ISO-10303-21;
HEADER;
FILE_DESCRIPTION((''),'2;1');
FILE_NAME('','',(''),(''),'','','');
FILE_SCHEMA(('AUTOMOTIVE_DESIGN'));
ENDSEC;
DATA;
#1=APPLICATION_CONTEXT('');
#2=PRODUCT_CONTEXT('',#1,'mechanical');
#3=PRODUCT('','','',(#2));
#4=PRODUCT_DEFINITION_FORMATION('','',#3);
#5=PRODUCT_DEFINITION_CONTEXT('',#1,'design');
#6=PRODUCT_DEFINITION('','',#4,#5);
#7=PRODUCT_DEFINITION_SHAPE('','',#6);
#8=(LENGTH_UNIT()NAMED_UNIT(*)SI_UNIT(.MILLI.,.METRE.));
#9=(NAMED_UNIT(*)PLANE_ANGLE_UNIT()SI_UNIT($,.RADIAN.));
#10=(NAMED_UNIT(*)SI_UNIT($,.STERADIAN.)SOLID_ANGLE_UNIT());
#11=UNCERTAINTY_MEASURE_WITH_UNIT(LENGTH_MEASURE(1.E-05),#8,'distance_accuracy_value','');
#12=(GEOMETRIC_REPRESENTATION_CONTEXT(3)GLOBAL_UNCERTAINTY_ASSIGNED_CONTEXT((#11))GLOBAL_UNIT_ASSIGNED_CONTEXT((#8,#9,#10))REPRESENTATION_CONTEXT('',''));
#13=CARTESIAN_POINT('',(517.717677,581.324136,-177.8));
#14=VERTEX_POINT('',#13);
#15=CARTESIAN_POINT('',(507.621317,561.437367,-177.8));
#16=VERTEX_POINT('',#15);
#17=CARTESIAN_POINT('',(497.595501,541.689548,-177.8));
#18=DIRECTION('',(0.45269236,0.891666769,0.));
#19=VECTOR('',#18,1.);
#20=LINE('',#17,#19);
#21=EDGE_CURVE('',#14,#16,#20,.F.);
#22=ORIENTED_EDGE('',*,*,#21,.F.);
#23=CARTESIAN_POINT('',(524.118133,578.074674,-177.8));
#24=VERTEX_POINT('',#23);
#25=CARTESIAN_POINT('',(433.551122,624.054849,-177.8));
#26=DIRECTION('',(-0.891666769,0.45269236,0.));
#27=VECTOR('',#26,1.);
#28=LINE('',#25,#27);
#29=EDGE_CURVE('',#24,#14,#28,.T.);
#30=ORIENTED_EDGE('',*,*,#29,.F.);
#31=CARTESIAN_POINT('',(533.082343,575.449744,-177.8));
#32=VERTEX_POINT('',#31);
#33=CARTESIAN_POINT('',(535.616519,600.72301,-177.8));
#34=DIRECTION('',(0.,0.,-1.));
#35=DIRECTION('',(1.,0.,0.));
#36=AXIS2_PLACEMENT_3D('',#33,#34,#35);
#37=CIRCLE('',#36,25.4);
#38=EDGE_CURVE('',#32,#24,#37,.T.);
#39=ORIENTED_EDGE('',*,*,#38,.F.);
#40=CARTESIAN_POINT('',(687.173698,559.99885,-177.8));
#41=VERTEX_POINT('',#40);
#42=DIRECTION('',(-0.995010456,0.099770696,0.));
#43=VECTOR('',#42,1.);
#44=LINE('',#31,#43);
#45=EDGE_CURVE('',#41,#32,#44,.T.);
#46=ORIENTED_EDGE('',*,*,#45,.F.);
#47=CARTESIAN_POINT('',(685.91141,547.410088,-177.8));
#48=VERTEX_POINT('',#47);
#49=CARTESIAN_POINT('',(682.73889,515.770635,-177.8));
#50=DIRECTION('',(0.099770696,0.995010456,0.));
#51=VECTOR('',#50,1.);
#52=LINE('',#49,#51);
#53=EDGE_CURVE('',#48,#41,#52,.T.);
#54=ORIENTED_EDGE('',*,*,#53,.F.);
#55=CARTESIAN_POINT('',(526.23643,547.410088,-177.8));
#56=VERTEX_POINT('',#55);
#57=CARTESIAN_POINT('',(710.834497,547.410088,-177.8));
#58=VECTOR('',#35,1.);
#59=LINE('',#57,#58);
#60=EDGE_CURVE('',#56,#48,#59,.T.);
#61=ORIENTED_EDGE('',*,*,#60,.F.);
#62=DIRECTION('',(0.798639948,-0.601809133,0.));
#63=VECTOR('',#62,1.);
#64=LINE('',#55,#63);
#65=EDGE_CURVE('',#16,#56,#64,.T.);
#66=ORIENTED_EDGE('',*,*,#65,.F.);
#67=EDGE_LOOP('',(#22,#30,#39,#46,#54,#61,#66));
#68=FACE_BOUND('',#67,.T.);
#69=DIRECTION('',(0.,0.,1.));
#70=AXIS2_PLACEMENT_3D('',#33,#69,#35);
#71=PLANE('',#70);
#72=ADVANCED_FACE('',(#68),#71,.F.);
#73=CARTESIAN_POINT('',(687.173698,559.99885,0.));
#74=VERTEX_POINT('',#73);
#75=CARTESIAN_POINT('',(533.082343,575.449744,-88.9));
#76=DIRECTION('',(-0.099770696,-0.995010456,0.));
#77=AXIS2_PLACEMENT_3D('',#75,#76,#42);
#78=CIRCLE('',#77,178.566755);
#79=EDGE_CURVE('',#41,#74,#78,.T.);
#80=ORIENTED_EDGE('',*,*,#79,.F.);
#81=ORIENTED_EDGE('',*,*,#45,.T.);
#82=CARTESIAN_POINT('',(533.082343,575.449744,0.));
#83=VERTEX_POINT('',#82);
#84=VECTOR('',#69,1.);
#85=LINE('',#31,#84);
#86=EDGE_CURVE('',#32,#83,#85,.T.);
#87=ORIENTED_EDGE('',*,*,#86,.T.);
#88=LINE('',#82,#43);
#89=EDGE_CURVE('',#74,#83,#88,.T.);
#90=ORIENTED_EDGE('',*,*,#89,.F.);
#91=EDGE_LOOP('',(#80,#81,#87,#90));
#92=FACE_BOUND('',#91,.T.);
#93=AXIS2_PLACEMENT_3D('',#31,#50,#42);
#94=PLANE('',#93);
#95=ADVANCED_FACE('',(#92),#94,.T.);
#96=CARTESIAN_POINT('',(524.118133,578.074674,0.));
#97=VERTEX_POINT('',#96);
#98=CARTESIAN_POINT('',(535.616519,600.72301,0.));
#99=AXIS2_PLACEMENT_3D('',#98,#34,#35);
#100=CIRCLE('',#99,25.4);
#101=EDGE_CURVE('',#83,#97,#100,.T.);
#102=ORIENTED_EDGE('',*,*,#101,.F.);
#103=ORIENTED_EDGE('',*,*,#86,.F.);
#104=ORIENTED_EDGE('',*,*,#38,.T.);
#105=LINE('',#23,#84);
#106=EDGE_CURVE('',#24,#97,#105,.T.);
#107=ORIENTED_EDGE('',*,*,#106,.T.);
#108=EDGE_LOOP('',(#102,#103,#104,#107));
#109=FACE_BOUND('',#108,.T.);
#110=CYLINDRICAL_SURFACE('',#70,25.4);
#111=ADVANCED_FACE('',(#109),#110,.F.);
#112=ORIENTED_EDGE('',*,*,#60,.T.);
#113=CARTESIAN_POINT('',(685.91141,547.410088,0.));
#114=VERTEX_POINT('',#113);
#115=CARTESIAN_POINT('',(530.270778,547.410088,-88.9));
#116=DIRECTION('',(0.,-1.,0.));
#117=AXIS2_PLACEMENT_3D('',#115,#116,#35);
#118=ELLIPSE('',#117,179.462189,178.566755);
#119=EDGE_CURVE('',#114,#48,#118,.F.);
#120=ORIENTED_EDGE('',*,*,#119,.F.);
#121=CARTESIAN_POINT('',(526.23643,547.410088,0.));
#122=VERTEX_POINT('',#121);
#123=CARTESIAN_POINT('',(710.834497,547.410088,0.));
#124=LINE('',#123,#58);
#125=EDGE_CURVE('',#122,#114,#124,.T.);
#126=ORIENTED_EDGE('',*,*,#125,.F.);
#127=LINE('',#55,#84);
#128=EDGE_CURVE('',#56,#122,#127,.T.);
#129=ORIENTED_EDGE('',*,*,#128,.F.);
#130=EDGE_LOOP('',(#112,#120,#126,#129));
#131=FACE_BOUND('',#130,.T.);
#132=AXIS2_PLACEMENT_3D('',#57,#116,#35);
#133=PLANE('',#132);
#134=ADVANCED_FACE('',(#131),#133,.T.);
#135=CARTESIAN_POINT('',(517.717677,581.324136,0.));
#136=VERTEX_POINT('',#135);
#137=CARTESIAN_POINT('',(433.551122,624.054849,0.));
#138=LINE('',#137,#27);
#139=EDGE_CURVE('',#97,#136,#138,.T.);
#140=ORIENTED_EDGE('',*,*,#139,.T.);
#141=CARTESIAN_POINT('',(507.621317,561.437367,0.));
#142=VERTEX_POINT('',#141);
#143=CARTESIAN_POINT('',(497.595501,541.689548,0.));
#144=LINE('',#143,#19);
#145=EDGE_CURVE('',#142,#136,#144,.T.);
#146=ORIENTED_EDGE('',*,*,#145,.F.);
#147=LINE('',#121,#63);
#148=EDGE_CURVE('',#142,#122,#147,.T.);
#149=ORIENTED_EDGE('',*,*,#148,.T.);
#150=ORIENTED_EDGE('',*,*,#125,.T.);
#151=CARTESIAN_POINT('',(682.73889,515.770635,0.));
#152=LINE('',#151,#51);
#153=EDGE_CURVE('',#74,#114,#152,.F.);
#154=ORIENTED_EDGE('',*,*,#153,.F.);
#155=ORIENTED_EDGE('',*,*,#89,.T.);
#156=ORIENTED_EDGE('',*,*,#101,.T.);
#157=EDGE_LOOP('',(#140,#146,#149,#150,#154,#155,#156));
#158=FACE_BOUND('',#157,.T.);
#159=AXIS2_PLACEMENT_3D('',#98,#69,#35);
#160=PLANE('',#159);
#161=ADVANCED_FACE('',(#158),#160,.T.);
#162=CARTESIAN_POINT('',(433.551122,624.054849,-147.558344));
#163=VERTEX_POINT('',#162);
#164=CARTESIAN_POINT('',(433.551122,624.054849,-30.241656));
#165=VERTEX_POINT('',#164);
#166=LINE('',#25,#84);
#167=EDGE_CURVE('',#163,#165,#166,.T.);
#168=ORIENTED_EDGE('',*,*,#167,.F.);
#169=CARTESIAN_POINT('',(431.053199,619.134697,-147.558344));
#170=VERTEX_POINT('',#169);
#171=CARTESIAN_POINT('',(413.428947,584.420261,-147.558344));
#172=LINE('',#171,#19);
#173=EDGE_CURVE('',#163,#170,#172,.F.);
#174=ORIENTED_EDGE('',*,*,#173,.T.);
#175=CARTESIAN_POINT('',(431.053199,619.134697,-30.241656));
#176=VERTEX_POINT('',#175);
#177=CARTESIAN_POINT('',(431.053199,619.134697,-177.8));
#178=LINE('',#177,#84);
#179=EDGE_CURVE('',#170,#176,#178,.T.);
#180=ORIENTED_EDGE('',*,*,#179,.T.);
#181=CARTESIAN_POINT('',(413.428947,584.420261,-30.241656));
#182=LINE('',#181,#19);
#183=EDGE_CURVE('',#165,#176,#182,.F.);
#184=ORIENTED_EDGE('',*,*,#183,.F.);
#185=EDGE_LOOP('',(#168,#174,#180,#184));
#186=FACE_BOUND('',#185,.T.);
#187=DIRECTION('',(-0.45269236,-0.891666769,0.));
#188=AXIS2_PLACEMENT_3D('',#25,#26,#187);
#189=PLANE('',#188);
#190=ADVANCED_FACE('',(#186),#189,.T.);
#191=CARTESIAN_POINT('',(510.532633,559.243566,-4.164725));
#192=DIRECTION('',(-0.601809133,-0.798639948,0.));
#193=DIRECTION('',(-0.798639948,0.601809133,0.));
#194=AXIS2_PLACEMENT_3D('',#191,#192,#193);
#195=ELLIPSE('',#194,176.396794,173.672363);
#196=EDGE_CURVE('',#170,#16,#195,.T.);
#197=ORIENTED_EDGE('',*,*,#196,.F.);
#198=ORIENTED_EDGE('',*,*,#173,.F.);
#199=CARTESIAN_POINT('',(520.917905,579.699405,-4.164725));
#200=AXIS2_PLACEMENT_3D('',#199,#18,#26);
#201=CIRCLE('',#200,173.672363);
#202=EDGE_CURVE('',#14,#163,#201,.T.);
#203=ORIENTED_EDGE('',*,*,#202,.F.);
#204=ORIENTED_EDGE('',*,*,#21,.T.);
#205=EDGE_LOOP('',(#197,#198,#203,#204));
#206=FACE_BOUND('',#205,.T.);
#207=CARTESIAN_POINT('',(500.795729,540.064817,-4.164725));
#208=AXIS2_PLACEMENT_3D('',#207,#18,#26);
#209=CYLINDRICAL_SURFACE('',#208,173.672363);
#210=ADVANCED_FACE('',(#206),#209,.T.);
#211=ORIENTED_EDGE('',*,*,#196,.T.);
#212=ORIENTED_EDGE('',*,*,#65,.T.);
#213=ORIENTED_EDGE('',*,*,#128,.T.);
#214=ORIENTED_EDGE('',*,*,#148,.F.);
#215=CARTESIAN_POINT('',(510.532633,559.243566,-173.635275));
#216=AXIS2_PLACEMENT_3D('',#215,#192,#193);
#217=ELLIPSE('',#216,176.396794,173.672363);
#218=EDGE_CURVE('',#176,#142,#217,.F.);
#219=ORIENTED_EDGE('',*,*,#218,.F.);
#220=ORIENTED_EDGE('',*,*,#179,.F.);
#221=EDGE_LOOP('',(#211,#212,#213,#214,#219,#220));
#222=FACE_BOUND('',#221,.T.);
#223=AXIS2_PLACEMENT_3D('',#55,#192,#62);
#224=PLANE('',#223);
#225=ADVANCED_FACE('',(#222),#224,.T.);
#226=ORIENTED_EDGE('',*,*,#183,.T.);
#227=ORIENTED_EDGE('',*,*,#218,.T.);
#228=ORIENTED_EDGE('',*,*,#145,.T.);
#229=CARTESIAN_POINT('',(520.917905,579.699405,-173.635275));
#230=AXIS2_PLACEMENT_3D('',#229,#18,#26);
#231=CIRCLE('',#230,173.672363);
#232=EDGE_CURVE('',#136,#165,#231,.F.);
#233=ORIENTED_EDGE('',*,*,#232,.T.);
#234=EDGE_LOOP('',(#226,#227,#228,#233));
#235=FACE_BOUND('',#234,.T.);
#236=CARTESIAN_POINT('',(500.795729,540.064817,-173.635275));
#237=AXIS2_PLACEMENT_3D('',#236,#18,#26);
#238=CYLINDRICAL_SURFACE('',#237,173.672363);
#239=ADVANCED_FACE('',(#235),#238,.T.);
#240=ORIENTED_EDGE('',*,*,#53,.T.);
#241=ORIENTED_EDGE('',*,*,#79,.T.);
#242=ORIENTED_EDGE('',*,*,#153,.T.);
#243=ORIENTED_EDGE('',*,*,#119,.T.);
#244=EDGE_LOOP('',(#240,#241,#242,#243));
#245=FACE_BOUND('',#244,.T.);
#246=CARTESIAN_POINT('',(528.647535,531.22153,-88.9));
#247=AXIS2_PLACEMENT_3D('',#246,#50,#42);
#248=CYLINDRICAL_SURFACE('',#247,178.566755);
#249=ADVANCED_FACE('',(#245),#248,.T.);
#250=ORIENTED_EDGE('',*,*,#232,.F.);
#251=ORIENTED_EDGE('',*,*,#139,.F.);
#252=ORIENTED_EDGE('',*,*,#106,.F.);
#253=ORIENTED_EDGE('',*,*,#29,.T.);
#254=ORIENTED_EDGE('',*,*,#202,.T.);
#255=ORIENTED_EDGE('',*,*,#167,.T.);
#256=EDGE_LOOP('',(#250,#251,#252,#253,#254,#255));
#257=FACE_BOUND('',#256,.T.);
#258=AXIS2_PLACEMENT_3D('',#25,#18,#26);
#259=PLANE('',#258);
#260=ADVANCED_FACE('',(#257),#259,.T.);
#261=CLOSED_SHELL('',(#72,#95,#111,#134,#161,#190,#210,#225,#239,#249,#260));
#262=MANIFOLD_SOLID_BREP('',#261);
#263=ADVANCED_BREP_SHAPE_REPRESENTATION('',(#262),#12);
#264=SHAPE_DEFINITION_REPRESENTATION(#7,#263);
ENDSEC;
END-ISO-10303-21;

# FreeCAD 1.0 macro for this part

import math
import FreeCAD as App
import Part
import Sketcher
Q = App.Units.Quantity

doc = App.newDocument("Part")
body = doc.addObject("PartDesign::Body", "Body")

sketch1 = body.newObject("Sketcher::SketchObject", "Sketch")
sketch1.AttachmentSupport = (doc.getObject("XY_Plane"), [""])
sketch1.MapMode = "FlatFace"
sketch1.addGeometry([
    Part.LineSegment(App.Vector(524.118133, 578.074674, 0), App.Vector(433.551122, 624.054849, 0)),
    Part.LineSegment(App.Vector(433.551122, 624.054849, 0), App.Vector(431.053199, 619.134697, 0)),
    Part.LineSegment(App.Vector(431.053199, 619.134697, 0), App.Vector(526.23643, 547.410088, 0)),
    Part.LineSegment(App.Vector(526.23643, 547.410088, 0), App.Vector(710.834497, 547.410088, 0)),
    Part.LineSegment(App.Vector(710.834497, 547.410088, 0), App.Vector(710.834497, 557.626358, 0)),
    Part.LineSegment(App.Vector(710.834497, 557.626358, 0), App.Vector(533.082343, 575.449744, 0)),
    Part.ArcOfCircle(Part.Circle(App.Vector(535.616519, 600.72301, 0), App.Vector(0, 0, 1), 25.4), math.radians(-116.916555), math.radians(-95.725966)),
], False)
sketch1.addConstraint([
    Sketcher.Constraint("Coincident", 0, 2, 1, 1),
    Sketcher.Constraint("Coincident", 1, 2, 2, 1),
    Sketcher.Constraint("Coincident", 2, 2, 3, 1),
    Sketcher.Constraint("Coincident", 3, 2, 4, 1),
    Sketcher.Constraint("Coincident", 4, 2, 5, 1),
    Sketcher.Constraint("Tangent", 5, 2, 6, 2),
    Sketcher.Constraint("Tangent", 6, 1, 0, 1),
    Sketcher.Constraint("Horizontal", 3),
    Sketcher.Constraint("Vertical", 4),
    Sketcher.Constraint("Perpendicular", 0, 1),
    Sketcher.Constraint("Radius", 6, Q("1 in")),
    Sketcher.Constraint("DistanceY", 4, 1, 4, 2, 10.21627),
    Sketcher.Constraint("DistanceX", -1, 1, 1, 2, 431.053199),
    Sketcher.Constraint("DistanceX", 3, 1, 3, 2, 184.598066),
    Sketcher.Constraint("DistanceX", -1, 1, 6, 3, 535.616519),
    Sketcher.Constraint("DistanceY", -1, 1, 6, 3, 600.72301),
    Sketcher.Constraint("DistanceY", -1, 1, 0, 2, 624.054849),
    Sketcher.Constraint("DistanceX", -1, 1, 2, 2, 526.23643),
    Sketcher.Constraint("DistanceY", 1, 2, 0, 2, 4.920152),
    Sketcher.Constraint("DistanceY", 2, 2, 1, 2, 71.724609),
])
pad1 = body.newObject("PartDesign::Pad", "Pad")
pad1.Profile = sketch1
pad1.Length = Q("7 in")
pad1.Reversed = True

sketch2 = body.newObject("Sketcher::SketchObject", "Sketch001")
sketch2.Placement = App.Placement(App.Vector(62.432961, 622.64223, 0), App.Rotation(App.Vector(-0.995010456, 0.099770696, 0), App.Vector(0, 0, 0.999999999), App.Vector(0.099770696, 0.995010456, 0), "ZXY"))
sketch2.addGeometry([
    Part.LineSegment(App.Vector(-627.873539, 0, 0), App.Vector(-668.145359, 0, 0)),
    Part.LineSegment(App.Vector(-668.145359, 0, 0), App.Vector(-668.145359, -177.8, 0)),
    Part.LineSegment(App.Vector(-668.145359, -177.8, 0), App.Vector(-627.873539, -177.8, 0)),
    Part.ArcOfCircle(Part.Circle(App.Vector(-473.009483, -88.9, 0), App.Vector(0, 0, 1), 178.566755), math.radians(150.141941), math.radians(209.858059)),
], False)
sketch2.addConstraint([
    Sketcher.Constraint("Coincident", 0, 2, 1, 1),
    Sketcher.Constraint("Coincident", 1, 2, 2, 1),
    Sketcher.Constraint("Coincident", 2, 2, 3, 2),
    Sketcher.Constraint("Coincident", 3, 1, 0, 1),
    Sketcher.Constraint("Horizontal", 0),
    Sketcher.Constraint("Vertical", 1),
    Sketcher.Constraint("Horizontal", 2),
    Sketcher.Constraint("PointOnObject", 0, 2, -1),
    Sketcher.Constraint("Vertical", 2, 2, 3, 1),
    Sketcher.Constraint("DistanceY", 1, 2, 1, 1, Q("7 in")),
    Sketcher.Constraint("Radius", 3, 178.566755),
    Sketcher.Constraint("DistanceX", 0, 2, 0, 1, 40.27182),
    Sketcher.Constraint("DistanceX", 0, 2, -1, 1, 668.145359),
])
pocket1 = body.newObject("PartDesign::Pocket", "Pocket")
pocket1.Profile = sketch2
pocket1.Length = Q("1.75 in")

sketch3 = body.newObject("Sketcher::SketchObject", "Sketch002")
sketch3.Placement = App.Placement(App.Vector(340.747991, 671.170285, 0), App.Rotation(App.Vector(-0.891666769, 0.45269236, 0), App.Vector(0, 0, 1), App.Vector(0.45269236, 0.891666769, 0), "ZXY"))
sketch3.addGeometry([
    Part.LineSegment(App.Vector(-104.078266, -30.241656, 0), App.Vector(-104.078266, 0, 0)),
    Part.LineSegment(App.Vector(-104.078266, 0, 0), App.Vector(-198.470653, 0, 0)),
    Part.ArcOfCircle(Part.Circle(App.Vector(-202.059693, -173.635275, 0), App.Vector(0, 0, 1), 173.672363), math.radians(55.65505), math.radians(88.815865)),
    Part.LineSegment(App.Vector(-104.078266, -177.8, 0), App.Vector(-104.078266, -147.558344, 0)),
    Part.ArcOfCircle(Part.Circle(App.Vector(-202.059693, -4.164725, 0), App.Vector(0, 0, 1), 173.672363), math.radians(-88.815865), math.radians(-55.65505)),
    Part.LineSegment(App.Vector(-198.470653, -177.8, 0), App.Vector(-104.078266, -177.8, 0)),
], False)
sketch3.addConstraint([
    Sketcher.Constraint("Coincident", 0, 2, 1, 1),
    Sketcher.Constraint("Coincident", 1, 2, 2, 2),
    Sketcher.Constraint("Coincident", 2, 1, 0, 1),
    Sketcher.Constraint("Coincident", 3, 2, 4, 2),
    Sketcher.Constraint("Coincident", 4, 1, 5, 1),
    Sketcher.Constraint("Coincident", 5, 2, 3, 1),
    Sketcher.Constraint("Vertical", 0),
    Sketcher.Constraint("Horizontal", 1),
    Sketcher.Constraint("Vertical", 3),
    Sketcher.Constraint("Horizontal", 5),
    Sketcher.Constraint("Equal", 2, 4),
    Sketcher.Constraint("PointOnObject", 0, 2, -1),
    Sketcher.Constraint("Vertical", 2, 3, 4, 3),
    Sketcher.Constraint("Vertical", 2, 1, 3, 2),
    Sketcher.Constraint("Vertical", 1, 2, 4, 1),
    Sketcher.Constraint("DistanceY", 4, 1, -1, 1, Q("7 in")),
    Sketcher.Constraint("Radius", 2, 173.672363),
    Sketcher.Constraint("DistanceX", 1, 2, 1, 1, 94.392387),
    Sketcher.Constraint("DistanceY", 0, 1, 0, 2, 30.241656),
    Sketcher.Constraint("DistanceX", 2, 3, -1, 1, 202.059693),
])
pocket2 = body.newObject("PartDesign::Pocket", "Pocket001")
pocket2.Profile = sketch3
pocket2.Length = Q("1.75 in")

doc.recompute()
